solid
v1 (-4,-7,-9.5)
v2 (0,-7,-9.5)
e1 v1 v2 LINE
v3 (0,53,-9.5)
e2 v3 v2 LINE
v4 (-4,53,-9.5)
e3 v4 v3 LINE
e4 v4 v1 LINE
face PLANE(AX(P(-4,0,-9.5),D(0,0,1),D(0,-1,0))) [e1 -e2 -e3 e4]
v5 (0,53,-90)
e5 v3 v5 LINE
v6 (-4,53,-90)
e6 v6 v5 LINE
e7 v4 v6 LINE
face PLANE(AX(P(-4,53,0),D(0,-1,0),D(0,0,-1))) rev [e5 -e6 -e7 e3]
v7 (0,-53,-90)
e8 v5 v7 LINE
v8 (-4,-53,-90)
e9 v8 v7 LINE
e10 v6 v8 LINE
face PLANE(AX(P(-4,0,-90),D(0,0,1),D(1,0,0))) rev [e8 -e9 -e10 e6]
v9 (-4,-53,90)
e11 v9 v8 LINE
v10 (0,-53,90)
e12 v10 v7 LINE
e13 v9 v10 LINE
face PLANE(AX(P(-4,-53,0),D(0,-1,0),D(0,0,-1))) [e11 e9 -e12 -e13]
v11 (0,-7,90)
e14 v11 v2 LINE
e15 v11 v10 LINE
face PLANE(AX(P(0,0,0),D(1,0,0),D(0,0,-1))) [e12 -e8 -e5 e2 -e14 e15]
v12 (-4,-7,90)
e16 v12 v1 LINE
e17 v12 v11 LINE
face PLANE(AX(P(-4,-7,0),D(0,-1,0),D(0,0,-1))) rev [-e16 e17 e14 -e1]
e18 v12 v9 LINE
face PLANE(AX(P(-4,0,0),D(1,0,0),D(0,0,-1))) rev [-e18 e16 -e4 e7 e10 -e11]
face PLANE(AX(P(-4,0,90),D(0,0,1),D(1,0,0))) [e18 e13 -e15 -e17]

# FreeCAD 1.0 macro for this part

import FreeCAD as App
import Part
import Sketcher

V = App.Vector
Q = App.Units.Quantity


def add_polygon(sketch, points):
    """Adds a closed chain of lines whose ends are joined by coincident constraints."""
    first, n = sketch.GeometryCount, len(points)
    for a, b in zip(points, points[1:] + points[:1]):
        sketch.addGeometry(Part.LineSegment(App.Vector(*a, 0), App.Vector(*b, 0)), False)
    for i in range(n):
        sketch.addConstraint(Sketcher.Constraint("Coincident", first + i, 2, first + (i + 1) % n, 1))

doc = App.newDocument("Part")
body = doc.addObject("PartDesign::Body", "Body")

# Sketch on YZ plane
sketch1 = doc.addObject("Sketcher::SketchObject", "Sketch")
body.addObject(sketch1)
sketch1.AttachmentSupport = (doc.YZ_Plane, [""])
sketch1.MapMode = "FlatFace"
add_polygon(sketch1, [(53, -9.5), (-7, -9.5), (-7, 90), (-53, 90), (-53, -90), (53, -90)])  # lines 0-5
sketch1.addConstraint(Sketcher.Constraint("Horizontal", 0))
sketch1.addConstraint(Sketcher.Constraint("Vertical", 1))
sketch1.addConstraint(Sketcher.Constraint("Horizontal", 2))
sketch1.addConstraint(Sketcher.Constraint("Vertical", 3))
sketch1.addConstraint(Sketcher.Constraint("Horizontal", 4))
sketch1.addConstraint(Sketcher.Constraint("Vertical", 5))
sketch1.addConstraint(Sketcher.Constraint("Symmetric", 2, 2, 4, 2, -1, 1))
sketch1.addConstraint(Sketcher.Constraint("DistanceX", 0, 2, 0, 1, Q("60 mm")))
sketch1.addConstraint(Sketcher.Constraint("DistanceX", 2, 2, 2, 1, Q("46 mm")))
sketch1.addConstraint(Sketcher.Constraint("DistanceY", 3, 2, 3, 1, Q("180 mm")))
sketch1.addConstraint(Sketcher.Constraint("DistanceY", 1, 1, 1, 2, Q("99.5 mm")))
pad1 = doc.addObject("PartDesign::Pad", "Pad")
body.addObject(pad1)
pad1.Profile = sketch1
pad1.Length = 4
pad1.Reversed = True

doc.recompute()
